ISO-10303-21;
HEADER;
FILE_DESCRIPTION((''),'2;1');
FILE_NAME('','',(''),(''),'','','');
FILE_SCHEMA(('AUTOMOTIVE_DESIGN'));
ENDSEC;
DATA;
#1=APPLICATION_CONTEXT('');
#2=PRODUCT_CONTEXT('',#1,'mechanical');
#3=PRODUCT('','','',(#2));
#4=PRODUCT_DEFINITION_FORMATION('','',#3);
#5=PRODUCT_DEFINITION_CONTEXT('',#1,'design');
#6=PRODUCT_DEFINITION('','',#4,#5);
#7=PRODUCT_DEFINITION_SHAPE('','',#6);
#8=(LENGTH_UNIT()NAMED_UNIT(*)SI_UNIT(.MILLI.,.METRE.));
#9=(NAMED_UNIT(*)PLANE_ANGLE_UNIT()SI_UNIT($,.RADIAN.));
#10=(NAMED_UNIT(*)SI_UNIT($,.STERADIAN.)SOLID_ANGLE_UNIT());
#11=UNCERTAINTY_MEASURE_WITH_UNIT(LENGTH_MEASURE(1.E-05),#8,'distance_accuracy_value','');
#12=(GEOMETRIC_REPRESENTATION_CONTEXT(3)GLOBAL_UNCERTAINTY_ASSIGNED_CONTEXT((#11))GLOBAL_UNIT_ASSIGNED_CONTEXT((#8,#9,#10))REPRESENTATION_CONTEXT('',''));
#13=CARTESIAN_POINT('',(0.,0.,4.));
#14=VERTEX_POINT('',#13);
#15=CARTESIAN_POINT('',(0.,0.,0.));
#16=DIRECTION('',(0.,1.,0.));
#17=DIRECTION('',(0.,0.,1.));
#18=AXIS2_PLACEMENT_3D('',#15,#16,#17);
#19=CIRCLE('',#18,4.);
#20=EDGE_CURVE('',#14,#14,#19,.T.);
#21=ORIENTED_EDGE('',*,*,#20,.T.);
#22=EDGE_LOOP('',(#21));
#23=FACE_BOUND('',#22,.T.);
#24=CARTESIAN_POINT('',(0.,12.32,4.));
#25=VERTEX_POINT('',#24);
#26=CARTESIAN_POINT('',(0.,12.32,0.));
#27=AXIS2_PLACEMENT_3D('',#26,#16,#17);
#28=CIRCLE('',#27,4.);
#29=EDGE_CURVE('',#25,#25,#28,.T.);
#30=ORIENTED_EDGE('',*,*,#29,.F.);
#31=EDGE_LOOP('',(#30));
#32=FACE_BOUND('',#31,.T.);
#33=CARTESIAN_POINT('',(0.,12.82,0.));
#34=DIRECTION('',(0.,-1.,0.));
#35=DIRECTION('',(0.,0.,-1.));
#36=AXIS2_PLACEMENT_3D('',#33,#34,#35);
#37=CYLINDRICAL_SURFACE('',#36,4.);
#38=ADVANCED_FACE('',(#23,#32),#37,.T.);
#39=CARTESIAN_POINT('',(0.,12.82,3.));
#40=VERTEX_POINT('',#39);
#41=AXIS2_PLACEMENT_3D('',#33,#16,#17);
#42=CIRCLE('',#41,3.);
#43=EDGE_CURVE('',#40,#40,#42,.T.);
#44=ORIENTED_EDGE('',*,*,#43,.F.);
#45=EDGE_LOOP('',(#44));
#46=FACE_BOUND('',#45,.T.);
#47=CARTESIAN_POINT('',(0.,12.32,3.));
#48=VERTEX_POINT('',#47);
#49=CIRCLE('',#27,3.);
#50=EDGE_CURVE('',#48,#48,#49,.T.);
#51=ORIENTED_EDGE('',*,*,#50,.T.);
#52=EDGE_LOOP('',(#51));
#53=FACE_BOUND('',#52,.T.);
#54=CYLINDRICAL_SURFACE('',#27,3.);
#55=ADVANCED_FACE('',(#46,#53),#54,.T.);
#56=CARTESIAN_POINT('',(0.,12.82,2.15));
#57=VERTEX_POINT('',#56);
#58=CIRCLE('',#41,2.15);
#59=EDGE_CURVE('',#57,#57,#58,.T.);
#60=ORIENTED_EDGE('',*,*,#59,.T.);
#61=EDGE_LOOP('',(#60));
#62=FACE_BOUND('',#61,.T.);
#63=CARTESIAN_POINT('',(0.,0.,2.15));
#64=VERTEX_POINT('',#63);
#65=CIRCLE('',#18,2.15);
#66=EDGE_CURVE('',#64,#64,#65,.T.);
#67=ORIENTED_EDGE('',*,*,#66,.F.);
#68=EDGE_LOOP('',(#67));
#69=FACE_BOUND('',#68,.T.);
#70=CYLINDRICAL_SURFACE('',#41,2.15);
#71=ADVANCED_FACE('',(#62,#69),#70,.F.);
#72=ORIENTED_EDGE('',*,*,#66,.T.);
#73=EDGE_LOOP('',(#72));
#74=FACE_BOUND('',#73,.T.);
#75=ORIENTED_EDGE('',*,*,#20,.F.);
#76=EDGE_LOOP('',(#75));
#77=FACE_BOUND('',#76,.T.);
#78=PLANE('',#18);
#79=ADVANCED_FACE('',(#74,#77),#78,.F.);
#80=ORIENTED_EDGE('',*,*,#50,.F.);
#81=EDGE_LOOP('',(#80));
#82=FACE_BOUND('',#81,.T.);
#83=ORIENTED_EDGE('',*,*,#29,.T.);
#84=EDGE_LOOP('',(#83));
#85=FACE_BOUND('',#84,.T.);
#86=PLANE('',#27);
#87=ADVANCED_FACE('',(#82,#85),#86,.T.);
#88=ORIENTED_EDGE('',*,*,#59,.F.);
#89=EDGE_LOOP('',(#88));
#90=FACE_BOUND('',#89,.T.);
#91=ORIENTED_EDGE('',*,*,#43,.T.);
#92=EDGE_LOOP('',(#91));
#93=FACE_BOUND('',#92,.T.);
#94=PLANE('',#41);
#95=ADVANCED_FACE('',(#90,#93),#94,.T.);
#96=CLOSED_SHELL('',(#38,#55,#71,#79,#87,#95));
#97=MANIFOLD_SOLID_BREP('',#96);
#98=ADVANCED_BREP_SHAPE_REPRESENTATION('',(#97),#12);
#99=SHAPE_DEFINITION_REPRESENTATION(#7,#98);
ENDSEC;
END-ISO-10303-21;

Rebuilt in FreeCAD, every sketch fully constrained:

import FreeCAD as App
import Part
import Sketcher
Q = App.Units.Quantity

doc = App.newDocument("Part")
params = doc.addObject("Spreadsheet::Sheet", "Params")
for row, (alias, value) in enumerate([
    ("sketch1_diameter", "8 mm"),
    ("pad1_length", "12.82 mm"),
    ("sketch2_diameter", "6 mm"),
    ("sketch2_width", "13.42 mm"),
    ("pocket1_length", "0.5 mm"),
    ("sketch3_diameter", "4.3 mm"),
    ("hole_diameter", "4.3 mm"),
], start=1):
    params.set(f"A{row}", alias)
    params.set(f"B{row}", "=" + value)
    params.setAlias(f"B{row}", alias)

body = doc.addObject("PartDesign::Body", "Body")

sketch1 = body.newObject("Sketcher::SketchObject", "Sketch")
sketch1.AttachmentSupport = (doc.getObject("XZ_Plane"), [""])
sketch1.MapMode = "FlatFace"
sketch1.addGeometry(Part.Circle(App.Vector(0, 0, 0), App.Vector(0, 0, 1), 4), False)
sketch1.addConstraint(Sketcher.Constraint("Coincident", 0, 3, -1, 1))
sketch1.addConstraint(Sketcher.Constraint("Diameter", 0, Q("8 mm")))
sketch1.setExpression("Constraints[1]", "Params.sketch1_diameter")
pad1 = body.newObject("PartDesign::Pad", "Pad")
pad1.Profile = sketch1
pad1.setExpression("Length", "Params.pad1_length")
pad1.Reversed = True

sketch2 = body.newObject("Sketcher::SketchObject", "Sketch001")
sketch2.AttachmentSupport = (doc.getObject("XZ_Plane"), [""])
sketch2.MapMode = "FlatFace"
sketch2.AttachmentOffset = App.Placement(App.Vector(0, 0, -12.82), App.Rotation())
sketch2.addGeometry(Part.LineSegment(App.Vector(-6.7, -6.7, 0), App.Vector(-6.7, 6.7, 0)), False)
sketch2.addGeometry(Part.LineSegment(App.Vector(-6.7, 6.7, 0), App.Vector(6.7, 6.7, 0)), False)
sketch2.addGeometry(Part.LineSegment(App.Vector(6.7, 6.7, 0), App.Vector(6.7, -6.7, 0)), False)
sketch2.addGeometry(Part.LineSegment(App.Vector(6.7, -6.7, 0), App.Vector(-6.7, -6.7, 0)), False)
sketch2.addGeometry(Part.Circle(App.Vector(0, 0, 0), App.Vector(0, 0, 1), 3), False)
sketch2.addConstraint(Sketcher.Constraint("Coincident", 0, 2, 1, 1))
sketch2.addConstraint(Sketcher.Constraint("Coincident", 1, 2, 2, 1))
sketch2.addConstraint(Sketcher.Constraint("Coincident", 2, 2, 3, 1))
sketch2.addConstraint(Sketcher.Constraint("Coincident", 3, 2, 0, 1))
sketch2.addConstraint(Sketcher.Constraint("Vertical", 0))
sketch2.addConstraint(Sketcher.Constraint("Horizontal", 1))
sketch2.addConstraint(Sketcher.Constraint("Vertical", 2))
sketch2.addConstraint(Sketcher.Constraint("Horizontal", 3))
sketch2.addConstraint(Sketcher.Constraint("Coincident", 4, 3, -1, 1))
sketch2.addConstraint(Sketcher.Constraint("Symmetric", 0, 2, 2, 2, -1, 1))
sketch2.addConstraint(Sketcher.Constraint("Equal", 3, 0))
sketch2.addConstraint(Sketcher.Constraint("Diameter", 4, Q("6 mm")))
sketch2.addConstraint(Sketcher.Constraint("DistanceX", 1, 1, 1, 2, Q("13.42 mm")))
sketch2.setExpression("Constraints[11]", "Params.sketch2_diameter")
sketch2.setExpression("Constraints[12]", "Params.sketch2_width")
pocket1 = body.newObject("PartDesign::Pocket", "Pocket")
pocket1.Profile = sketch2
pocket1.setExpression("Length", "Params.pocket1_length")
pocket1.Reversed = True

sketch3 = body.newObject("Sketcher::SketchObject", "Sketch002")
sketch3.AttachmentSupport = (doc.getObject("XZ_Plane"), [""])
sketch3.MapMode = "FlatFace"
sketch3.AttachmentOffset = App.Placement(App.Vector(0, 0, -12.82), App.Rotation())
sketch3.addGeometry(Part.Circle(App.Vector(0, 0, 0), App.Vector(0, 0, 1), 2.1), False)
sketch3.addConstraint(Sketcher.Constraint("Coincident", 0, 3, -1, 1))
sketch3.addConstraint(Sketcher.Constraint("Diameter", 0, Q("4.3 mm")))
sketch3.setExpression("Constraints[1]", "Params.sketch3_diameter")
doc.recompute()
hole = body.newObject("PartDesign::Hole", "Hole")
hole.Profile = sketch3
hole.ThreadType = "None"
hole.setExpression("Diameter", "Params.hole_diameter")
hole.DepthType = "ThroughAll"
hole.Reversed = True

doc.recompute()
